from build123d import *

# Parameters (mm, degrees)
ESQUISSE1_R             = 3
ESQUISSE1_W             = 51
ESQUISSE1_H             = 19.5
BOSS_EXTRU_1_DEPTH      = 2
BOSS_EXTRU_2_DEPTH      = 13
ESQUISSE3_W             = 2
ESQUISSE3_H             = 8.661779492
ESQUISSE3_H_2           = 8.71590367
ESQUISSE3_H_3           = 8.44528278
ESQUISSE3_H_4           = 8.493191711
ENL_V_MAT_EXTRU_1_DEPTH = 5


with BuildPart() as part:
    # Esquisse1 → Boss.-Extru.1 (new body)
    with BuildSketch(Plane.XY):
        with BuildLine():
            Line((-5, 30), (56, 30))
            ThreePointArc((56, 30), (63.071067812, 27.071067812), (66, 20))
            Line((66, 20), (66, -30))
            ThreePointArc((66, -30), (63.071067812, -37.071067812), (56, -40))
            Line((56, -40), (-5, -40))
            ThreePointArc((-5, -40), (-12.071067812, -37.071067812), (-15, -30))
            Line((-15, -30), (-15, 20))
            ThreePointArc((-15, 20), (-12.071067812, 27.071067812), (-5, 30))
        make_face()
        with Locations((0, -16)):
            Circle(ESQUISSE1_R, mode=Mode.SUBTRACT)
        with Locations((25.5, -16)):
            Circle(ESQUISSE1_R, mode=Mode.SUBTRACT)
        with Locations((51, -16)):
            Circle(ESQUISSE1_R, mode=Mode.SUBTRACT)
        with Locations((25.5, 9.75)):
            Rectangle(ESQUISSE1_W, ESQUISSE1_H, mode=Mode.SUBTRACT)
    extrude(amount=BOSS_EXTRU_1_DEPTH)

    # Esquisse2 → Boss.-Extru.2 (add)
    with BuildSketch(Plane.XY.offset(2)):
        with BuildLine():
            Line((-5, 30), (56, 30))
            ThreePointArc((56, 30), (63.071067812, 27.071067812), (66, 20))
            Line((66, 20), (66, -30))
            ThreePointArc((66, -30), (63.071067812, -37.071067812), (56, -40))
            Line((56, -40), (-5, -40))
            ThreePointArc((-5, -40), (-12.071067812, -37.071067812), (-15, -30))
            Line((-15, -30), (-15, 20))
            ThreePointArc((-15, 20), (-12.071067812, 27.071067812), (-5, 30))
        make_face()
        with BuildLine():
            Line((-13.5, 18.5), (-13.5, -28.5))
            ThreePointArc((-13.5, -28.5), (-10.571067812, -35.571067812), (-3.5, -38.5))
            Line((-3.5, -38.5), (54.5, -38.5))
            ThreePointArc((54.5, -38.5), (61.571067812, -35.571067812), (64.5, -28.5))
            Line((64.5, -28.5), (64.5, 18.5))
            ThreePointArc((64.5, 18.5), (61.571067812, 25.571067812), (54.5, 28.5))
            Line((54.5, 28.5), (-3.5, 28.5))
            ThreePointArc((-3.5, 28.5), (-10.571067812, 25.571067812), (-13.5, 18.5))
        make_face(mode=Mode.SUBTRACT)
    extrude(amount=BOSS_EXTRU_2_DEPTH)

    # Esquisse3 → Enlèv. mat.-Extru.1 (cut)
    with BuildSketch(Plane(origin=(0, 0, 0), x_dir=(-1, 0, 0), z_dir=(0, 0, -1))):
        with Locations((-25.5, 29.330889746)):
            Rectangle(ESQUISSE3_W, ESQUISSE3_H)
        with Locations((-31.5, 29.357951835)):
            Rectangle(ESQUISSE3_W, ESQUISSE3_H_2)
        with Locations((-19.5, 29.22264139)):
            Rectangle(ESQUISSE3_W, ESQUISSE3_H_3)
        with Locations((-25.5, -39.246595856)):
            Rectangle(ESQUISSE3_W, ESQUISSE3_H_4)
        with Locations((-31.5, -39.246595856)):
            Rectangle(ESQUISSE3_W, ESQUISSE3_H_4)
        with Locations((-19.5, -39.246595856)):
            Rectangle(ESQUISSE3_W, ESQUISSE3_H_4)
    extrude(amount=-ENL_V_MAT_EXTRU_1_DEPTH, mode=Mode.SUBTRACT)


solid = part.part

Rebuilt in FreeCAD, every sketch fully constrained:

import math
import FreeCAD as App
import Part
import Sketcher

V = App.Vector


def add_polygon(sketch, points):
    """Adds a closed chain of lines whose ends are joined by coincident constraints."""
    first, n = sketch.GeometryCount, len(points)
    for a, b in zip(points, points[1:] + points[:1]):
        sketch.addGeometry(Part.LineSegment(App.Vector(*a, 0), App.Vector(*b, 0)), False)
    for i in range(n):
        sketch.addConstraint(Sketcher.Constraint("Coincident", first + i, 2, first + (i + 1) % n, 1))

doc = App.newDocument("Part")
params = doc.addObject("Spreadsheet::Sheet", "Params")
for row, (alias, value) in enumerate([
    ("sketch1_diameter", "6 mm"),
    ("sketch1_radius", "10 mm"),
    ("sketch1_width", "61 mm"),
    ("sketch1_width2", "51 mm"),
    ("sketch1_height", "50 mm"),
    ("pad1_length", "2 mm"),
    ("sketch2_radius", "10 mm"),
    ("sketch2_width", "61 mm"),
    ("sketch2_width2", "58 mm"),
    ("sketch2_height", "50 mm"),
    ("sketch2_height2", "47 mm"),
    ("pad2_length", "13 mm"),
    ("sketch3_width", "2 mm"),
    ("pocket1_length", "5 mm"),
], start=1):
    params.set(f"A{row}", alias)
    params.set(f"B{row}", "=" + value)
    params.setAlias(f"B{row}", alias)

body = doc.addObject("PartDesign::Body", "Body")

# Sketch on XY plane
sketch1 = body.newObject("Sketcher::SketchObject", "Sketch")
sketch1.AttachmentSupport = (doc.getObject("XY_Plane"), [""])
sketch1.MapMode = "FlatFace"
sketch1.addGeometry(Part.LineSegment(V(56, 30, 0), V(-5, 30, 0)), False)  # 0
sketch1.addGeometry(Part.ArcOfCircle(Part.Circle(V(-5, 20, 0), V(0, 0, 1), 10), math.radians(90), math.radians(180)), False)  # 1
sketch1.addGeometry(Part.LineSegment(V(-15, 20, 0), V(-15, -30, 0)), False)  # 2
sketch1.addGeometry(Part.ArcOfCircle(Part.Circle(V(-5, -30, 0), V(0, 0, 1), 10), math.radians(180), math.radians(270)), False)  # 3
sketch1.addGeometry(Part.LineSegment(V(-5, -40, 0), V(56, -40, 0)), False)  # 4
sketch1.addGeometry(Part.ArcOfCircle(Part.Circle(V(56, -30, 0), V(0, 0, 1), 10), math.radians(-90), math.radians(0)), False)  # 5
sketch1.addGeometry(Part.LineSegment(V(66, -30, 0), V(66, 20, 0)), False)  # 6
sketch1.addGeometry(Part.ArcOfCircle(Part.Circle(V(56, 20, 0), V(0, 0, 1), 10), math.radians(0), math.radians(90)), False)  # 7
sketch1.addGeometry(Part.Circle(V(51, -16, 0), V(0, 0, 1), 3), False)  # 8
sketch1.addGeometry(Part.Circle(V(25.5, -16, 0), V(0, 0, 1), 3), False)  # 9
sketch1.addGeometry(Part.Circle(V(0, -16, 0), V(0, 0, 1), 3), False)  # 10
add_polygon(sketch1, [(0, 0), (0, 19.5), (51, 19.5), (51, 0)])  # lines 11-14
sketch1.addConstraint(Sketcher.Constraint("Tangent", 0, 2, 1, 1))
sketch1.addConstraint(Sketcher.Constraint("Tangent", 1, 2, 2, 1))
sketch1.addConstraint(Sketcher.Constraint("Tangent", 2, 2, 3, 1))
sketch1.addConstraint(Sketcher.Constraint("Tangent", 3, 2, 4, 1))
sketch1.addConstraint(Sketcher.Constraint("Tangent", 4, 2, 5, 1))
sketch1.addConstraint(Sketcher.Constraint("Tangent", 5, 2, 6, 1))
sketch1.addConstraint(Sketcher.Constraint("Tangent", 6, 2, 7, 1))
sketch1.addConstraint(Sketcher.Constraint("Tangent", 7, 2, 0, 1))
sketch1.addConstraint(Sketcher.Constraint("Horizontal", 0))
sketch1.addConstraint(Sketcher.Constraint("Vertical", 2))
sketch1.addConstraint(Sketcher.Constraint("Horizontal", 4))
sketch1.addConstraint(Sketcher.Constraint("Vertical", 6))
sketch1.addConstraint(Sketcher.Constraint("Vertical", 11))
sketch1.addConstraint(Sketcher.Constraint("Horizontal", 12))
sketch1.addConstraint(Sketcher.Constraint("Vertical", 13))
sketch1.addConstraint(Sketcher.Constraint("Horizontal", 14))
sketch1.addConstraint(Sketcher.Constraint("Coincident", 14, 2, -1, 1))
sketch1.addConstraint(Sketcher.Constraint("Equal", 1, 3))
sketch1.addConstraint(Sketcher.Constraint("Equal", 3, 5))
sketch1.addConstraint(Sketcher.Constraint("Equal", 5, 7))
sketch1.addConstraint(Sketcher.Constraint("Equal", 8, 9))
sketch1.addConstraint(Sketcher.Constraint("Equal", 9, 10))
sketch1.addConstraint(Sketcher.Constraint("PointOnObject", 10, 3, -2))
sketch1.addConstraint(Sketcher.Constraint("Horizontal", 8, 3, 9, 3))
sketch1.addConstraint(Sketcher.Constraint("Horizontal", 9, 3, 10, 3))
sketch1.addConstraint(Sketcher.Constraint("Vertical", 8, 3, 12, 2))
sketch1.addConstraint(Sketcher.Constraint("Diameter", 8, 6.0))
sketch1.addConstraint(Sketcher.Constraint("Radius", 1, 10.0))
sketch1.addConstraint(Sketcher.Constraint("DistanceX", 0, 2, 0, 1, 61.0))
sketch1.addConstraint(Sketcher.Constraint("DistanceX", 12, 1, 12, 2, 51.0))
sketch1.addConstraint(Sketcher.Constraint("DistanceY", 2, 2, 2, 1, 50.0))
sketch1.addConstraint(Sketcher.Constraint("DistanceY", 11, 1, 11, 2, 19.5))
sketch1.addConstraint(Sketcher.Constraint("DistanceX", 1, 3, -1, 1, 5.0))
sketch1.addConstraint(Sketcher.Constraint("DistanceY", -1, 1, 1, 3, 20.0))
sketch1.addConstraint(Sketcher.Constraint("DistanceY", 8, 3, -1, 1, 16.0))
sketch1.addConstraint(Sketcher.Constraint("DistanceX", -1, 1, 9, 3, 25.5))
sketch1.setExpression("Constraints[30]", "Params.sketch1_diameter")
sketch1.setExpression("Constraints[31]", "Params.sketch1_radius")
sketch1.setExpression("Constraints[32]", "Params.sketch1_width")
sketch1.setExpression("Constraints[33]", "Params.sketch1_width2")
sketch1.setExpression("Constraints[34]", "Params.sketch1_height")
pad1 = body.newObject("PartDesign::Pad", "Pad")
pad1.Profile = sketch1
pad1.setExpression("Length", "Params.pad1_length")

# Sketch on XY plane
sketch2 = body.newObject("Sketcher::SketchObject", "Sketch001")
sketch2.AttachmentSupport = (doc.getObject("XY_Plane"), [""])
sketch2.MapMode = "FlatFace"
sketch2.AttachmentOffset = App.Placement(V(0, 0, 2), App.Rotation())
sketch2.addGeometry(Part.LineSegment(V(56, 30, 0), V(-5, 30, 0)), False)
sketch2.addGeometry(Part.ArcOfCircle(Part.Circle(V(-5, 20, 0), V(0, 0, 1), 10), math.radians(90), math.radians(180)), False)
sketch2.addGeometry(Part.LineSegment(V(-15, 20, 0), V(-15, -30, 0)), False)
sketch2.addGeometry(Part.ArcOfCircle(Part.Circle(V(-5, -30, 0), V(0, 0, 1), 10), math.radians(180), math.radians(270)), False)
sketch2.addGeometry(Part.LineSegment(V(-5, -40, 0), V(56, -40, 0)), False)
sketch2.addGeometry(Part.ArcOfCircle(Part.Circle(V(56, -30, 0), V(0, 0, 1), 10), math.radians(-90), math.radians(0)), False)
sketch2.addGeometry(Part.LineSegment(V(66, -30, 0), V(66, 20, 0)), False)
sketch2.addGeometry(Part.ArcOfCircle(Part.Circle(V(56, 20, 0), V(0, 0, 1), 10), math.radians(0), math.radians(90)), False)
sketch2.addGeometry(Part.ArcOfCircle(Part.Circle(V(-3.5, 18.5, 0), V(0, 0, 1), 10), math.radians(90), math.radians(180)), False)
sketch2.addGeometry(Part.LineSegment(V(-3.5, 28.5, 0), V(54.5, 28.5, 0)), False)
sketch2.addGeometry(Part.ArcOfCircle(Part.Circle(V(54.5, 18.5, 0), V(0, 0, 1), 10), math.radians(0), math.radians(90)), False)
sketch2.addGeometry(Part.LineSegment(V(64.5, 18.5, 0), V(64.5, -28.5, 0)), False)
sketch2.addGeometry(Part.ArcOfCircle(Part.Circle(V(54.5, -28.5, 0), V(0, 0, 1), 10), math.radians(-90), math.radians(0)), False)
sketch2.addGeometry(Part.LineSegment(V(54.5, -38.5, 0), V(-3.5, -38.5, 0)), False)
sketch2.addGeometry(Part.ArcOfCircle(Part.Circle(V(-3.5, -28.5, 0), V(0, 0, 1), 10), math.radians(180), math.radians(270)), False)
sketch2.addGeometry(Part.LineSegment(V(-13.5, -28.5, 0), V(-13.5, 18.5, 0)), False)
sketch2.addConstraint(Sketcher.Constraint("Tangent", 0, 2, 1, 1))
sketch2.addConstraint(Sketcher.Constraint("Tangent", 1, 2, 2, 1))
sketch2.addConstraint(Sketcher.Constraint("Tangent", 2, 2, 3, 1))
sketch2.addConstraint(Sketcher.Constraint("Tangent", 3, 2, 4, 1))
sketch2.addConstraint(Sketcher.Constraint("Tangent", 4, 2, 5, 1))
sketch2.addConstraint(Sketcher.Constraint("Tangent", 5, 2, 6, 1))
sketch2.addConstraint(Sketcher.Constraint("Tangent", 6, 2, 7, 1))
sketch2.addConstraint(Sketcher.Constraint("Tangent", 7, 2, 0, 1))
sketch2.addConstraint(Sketcher.Constraint("Tangent", 8, 1, 9, 1))
sketch2.addConstraint(Sketcher.Constraint("Tangent", 9, 2, 10, 2))
sketch2.addConstraint(Sketcher.Constraint("Tangent", 10, 1, 11, 1))
sketch2.addConstraint(Sketcher.Constraint("Tangent", 11, 2, 12, 2))
sketch2.addConstraint(Sketcher.Constraint("Tangent", 12, 1, 13, 1))
sketch2.addConstraint(Sketcher.Constraint("Tangent", 13, 2, 14, 2))
sketch2.addConstraint(Sketcher.Constraint("Tangent", 14, 1, 15, 1))
sketch2.addConstraint(Sketcher.Constraint("Tangent", 15, 2, 8, 2))
sketch2.addConstraint(Sketcher.Constraint("Horizontal", 0))
sketch2.addConstraint(Sketcher.Constraint("Vertical", 2))
sketch2.addConstraint(Sketcher.Constraint("Horizontal", 4))
sketch2.addConstraint(Sketcher.Constraint("Vertical", 6))
sketch2.addConstraint(Sketcher.Constraint("Horizontal", 9))
sketch2.addConstraint(Sketcher.Constraint("Vertical", 11))
sketch2.addConstraint(Sketcher.Constraint("Horizontal", 13))
sketch2.addConstraint(Sketcher.Constraint("Vertical", 15))
sketch2.addConstraint(Sketcher.Constraint("Equal", 1, 3))
sketch2.addConstraint(Sketcher.Constraint("Equal", 3, 5))
sketch2.addConstraint(Sketcher.Constraint("Equal", 5, 7))
sketch2.addConstraint(Sketcher.Constraint("Equal", 7, 8))
sketch2.addConstraint(Sketcher.Constraint("Equal", 8, 10))
sketch2.addConstraint(Sketcher.Constraint("Equal", 10, 12))
sketch2.addConstraint(Sketcher.Constraint("Equal", 12, 14))
sketch2.addConstraint(Sketcher.Constraint("Radius", 1, 10.0))
sketch2.addConstraint(Sketcher.Constraint("DistanceX", 0, 2, 0, 1, 61.0))
sketch2.addConstraint(Sketcher.Constraint("DistanceX", 9, 1, 9, 2, 58.0))
sketch2.addConstraint(Sketcher.Constraint("DistanceY", 2, 2, 2, 1, 50.0))
sketch2.addConstraint(Sketcher.Constraint("DistanceY", 11, 2, 11, 1, 47.0))
sketch2.addConstraint(Sketcher.Constraint("DistanceX", 1, 3, -1, 1, 5.0))
sketch2.addConstraint(Sketcher.Constraint("DistanceY", -1, 1, 1, 3, 20.0))
sketch2.addConstraint(Sketcher.Constraint("DistanceX", 8, 3, -1, 1, 3.5))
sketch2.addConstraint(Sketcher.Constraint("DistanceY", -1, 1, 8, 3, 18.5))
sketch2.setExpression("Constraints[31]", "Params.sketch2_radius")
sketch2.setExpression("Constraints[32]", "Params.sketch2_width")
sketch2.setExpression("Constraints[33]", "Params.sketch2_width2")
sketch2.setExpression("Constraints[34]", "Params.sketch2_height")
sketch2.setExpression("Constraints[35]", "Params.sketch2_height2")
pad2 = body.newObject("PartDesign::Pad", "Pad001")
pad2.Profile = sketch2
pad2.setExpression("Length", "Params.pad2_length")

# Sketch on XY plane
sketch3 = body.newObject("Sketcher::SketchObject", "Sketch002")
sketch3.AttachmentSupport = (doc.getObject("XY_Plane"), [""])
sketch3.MapMode = "FlatFace"
add_polygon(sketch3, [(26.5, 33.661779), (26.5, 25), (24.5, 25), (24.5, 33.661779)])  # lines 0-3
add_polygon(sketch3, [(32.5, 33.715904), (32.5, 25), (30.5, 25), (30.5, 33.715904)])  # lines 4-7
add_polygon(sketch3, [(20.5, 33.445283), (20.5, 25), (18.5, 25), (18.5, 33.445283)])  # lines 8-11
add_polygon(sketch3, [(26.5, -35), (26.5, -43.493192), (24.5, -43.493192), (24.5, -35)])  # lines 12-15
add_polygon(sketch3, [(32.5, -35), (32.5, -43.493192), (30.5, -43.493192), (30.5, -35)])  # lines 16-19
add_polygon(sketch3, [(20.5, -35), (20.5, -43.493192), (18.5, -43.493192), (18.5, -35)])  # lines 20-23
sketch3.addConstraint(Sketcher.Constraint("Vertical", 0))
sketch3.addConstraint(Sketcher.Constraint("Horizontal", 1))
sketch3.addConstraint(Sketcher.Constraint("Vertical", 2))
sketch3.addConstraint(Sketcher.Constraint("Horizontal", 3))
sketch3.addConstraint(Sketcher.Constraint("Vertical", 4))
sketch3.addConstraint(Sketcher.Constraint("Horizontal", 5))
sketch3.addConstraint(Sketcher.Constraint("Vertical", 6))
sketch3.addConstraint(Sketcher.Constraint("Horizontal", 7))
sketch3.addConstraint(Sketcher.Constraint("Vertical", 8))
sketch3.addConstraint(Sketcher.Constraint("Horizontal", 9))
sketch3.addConstraint(Sketcher.Constraint("Vertical", 10))
sketch3.addConstraint(Sketcher.Constraint("Horizontal", 11))
sketch3.addConstraint(Sketcher.Constraint("Vertical", 12))
sketch3.addConstraint(Sketcher.Constraint("Horizontal", 13))
sketch3.addConstraint(Sketcher.Constraint("Vertical", 14))
sketch3.addConstraint(Sketcher.Constraint("Horizontal", 15))
sketch3.addConstraint(Sketcher.Constraint("Vertical", 16))
sketch3.addConstraint(Sketcher.Constraint("Horizontal", 17))
sketch3.addConstraint(Sketcher.Constraint("Vertical", 18))
sketch3.addConstraint(Sketcher.Constraint("Horizontal", 19))
sketch3.addConstraint(Sketcher.Constraint("Vertical", 20))
sketch3.addConstraint(Sketcher.Constraint("Horizontal", 21))
sketch3.addConstraint(Sketcher.Constraint("Vertical", 22))
sketch3.addConstraint(Sketcher.Constraint("Horizontal", 23))
sketch3.addConstraint(Sketcher.Constraint("Horizontal", 1, 2, 4, 2))
sketch3.addConstraint(Sketcher.Constraint("Horizontal", 5, 2, 8, 2))
sketch3.addConstraint(Sketcher.Constraint("Horizontal", 13, 2, 16, 2))
sketch3.addConstraint(Sketcher.Constraint("Horizontal", 15, 2, 18, 2))
sketch3.addConstraint(Sketcher.Constraint("Horizontal", 17, 2, 20, 2))
sketch3.addConstraint(Sketcher.Constraint("Horizontal", 19, 2, 22, 2))
sketch3.addConstraint(Sketcher.Constraint("Vertical", 3, 2, 12, 2))
sketch3.addConstraint(Sketcher.Constraint("Vertical", 2, 2, 13, 2))
sketch3.addConstraint(Sketcher.Constraint("Vertical", 7, 2, 16, 2))
sketch3.addConstraint(Sketcher.Constraint("Vertical", 6, 2, 17, 2))
sketch3.addConstraint(Sketcher.Constraint("Vertical", 11, 2, 20, 2))
sketch3.addConstraint(Sketcher.Constraint("Vertical", 10, 2, 21, 2))
sketch3.addConstraint(Sketcher.Constraint("Equal", 3, 5))
sketch3.addConstraint(Sketcher.Constraint("Equal", 7, 9))
sketch3.addConstraint(Sketcher.Constraint("DistanceX", 1, 2, 1, 1, 2.0))
sketch3.addConstraint(Sketcher.Constraint("DistanceY", -1, 1, 0, 2, 25.0))
sketch3.addConstraint(Sketcher.Constraint("DistanceY", 14, 2, -1, 1, 35.0))
sketch3.addConstraint(Sketcher.Constraint("DistanceX", 0, 2, 4, 2, 6.0))
sketch3.addConstraint(Sketcher.Constraint("DistanceX", 8, 2, 1, 2, 4.0))
sketch3.addConstraint(Sketcher.Constraint("DistanceX", -1, 1, 0, 2, 26.5))
sketch3.addConstraint(Sketcher.Constraint("DistanceY", 0, 2, 0, 1, 8.661779))
sketch3.addConstraint(Sketcher.Constraint("DistanceY", 12, 2, 12, 1, 8.493192))
sketch3.addConstraint(Sketcher.Constraint("DistanceY", 4, 2, 4, 1, 8.715904))
sketch3.addConstraint(Sketcher.Constraint("DistanceY", 8, 2, 8, 1, 8.445283))
sketch3.setExpression("Constraints[62]", "Params.sketch3_width")
pocket1 = body.newObject("PartDesign::Pocket", "Pocket")
pocket1.Profile = sketch3
pocket1.setExpression("Length", "Params.pocket1_length")
pocket1.Reversed = True

doc.recompute()
